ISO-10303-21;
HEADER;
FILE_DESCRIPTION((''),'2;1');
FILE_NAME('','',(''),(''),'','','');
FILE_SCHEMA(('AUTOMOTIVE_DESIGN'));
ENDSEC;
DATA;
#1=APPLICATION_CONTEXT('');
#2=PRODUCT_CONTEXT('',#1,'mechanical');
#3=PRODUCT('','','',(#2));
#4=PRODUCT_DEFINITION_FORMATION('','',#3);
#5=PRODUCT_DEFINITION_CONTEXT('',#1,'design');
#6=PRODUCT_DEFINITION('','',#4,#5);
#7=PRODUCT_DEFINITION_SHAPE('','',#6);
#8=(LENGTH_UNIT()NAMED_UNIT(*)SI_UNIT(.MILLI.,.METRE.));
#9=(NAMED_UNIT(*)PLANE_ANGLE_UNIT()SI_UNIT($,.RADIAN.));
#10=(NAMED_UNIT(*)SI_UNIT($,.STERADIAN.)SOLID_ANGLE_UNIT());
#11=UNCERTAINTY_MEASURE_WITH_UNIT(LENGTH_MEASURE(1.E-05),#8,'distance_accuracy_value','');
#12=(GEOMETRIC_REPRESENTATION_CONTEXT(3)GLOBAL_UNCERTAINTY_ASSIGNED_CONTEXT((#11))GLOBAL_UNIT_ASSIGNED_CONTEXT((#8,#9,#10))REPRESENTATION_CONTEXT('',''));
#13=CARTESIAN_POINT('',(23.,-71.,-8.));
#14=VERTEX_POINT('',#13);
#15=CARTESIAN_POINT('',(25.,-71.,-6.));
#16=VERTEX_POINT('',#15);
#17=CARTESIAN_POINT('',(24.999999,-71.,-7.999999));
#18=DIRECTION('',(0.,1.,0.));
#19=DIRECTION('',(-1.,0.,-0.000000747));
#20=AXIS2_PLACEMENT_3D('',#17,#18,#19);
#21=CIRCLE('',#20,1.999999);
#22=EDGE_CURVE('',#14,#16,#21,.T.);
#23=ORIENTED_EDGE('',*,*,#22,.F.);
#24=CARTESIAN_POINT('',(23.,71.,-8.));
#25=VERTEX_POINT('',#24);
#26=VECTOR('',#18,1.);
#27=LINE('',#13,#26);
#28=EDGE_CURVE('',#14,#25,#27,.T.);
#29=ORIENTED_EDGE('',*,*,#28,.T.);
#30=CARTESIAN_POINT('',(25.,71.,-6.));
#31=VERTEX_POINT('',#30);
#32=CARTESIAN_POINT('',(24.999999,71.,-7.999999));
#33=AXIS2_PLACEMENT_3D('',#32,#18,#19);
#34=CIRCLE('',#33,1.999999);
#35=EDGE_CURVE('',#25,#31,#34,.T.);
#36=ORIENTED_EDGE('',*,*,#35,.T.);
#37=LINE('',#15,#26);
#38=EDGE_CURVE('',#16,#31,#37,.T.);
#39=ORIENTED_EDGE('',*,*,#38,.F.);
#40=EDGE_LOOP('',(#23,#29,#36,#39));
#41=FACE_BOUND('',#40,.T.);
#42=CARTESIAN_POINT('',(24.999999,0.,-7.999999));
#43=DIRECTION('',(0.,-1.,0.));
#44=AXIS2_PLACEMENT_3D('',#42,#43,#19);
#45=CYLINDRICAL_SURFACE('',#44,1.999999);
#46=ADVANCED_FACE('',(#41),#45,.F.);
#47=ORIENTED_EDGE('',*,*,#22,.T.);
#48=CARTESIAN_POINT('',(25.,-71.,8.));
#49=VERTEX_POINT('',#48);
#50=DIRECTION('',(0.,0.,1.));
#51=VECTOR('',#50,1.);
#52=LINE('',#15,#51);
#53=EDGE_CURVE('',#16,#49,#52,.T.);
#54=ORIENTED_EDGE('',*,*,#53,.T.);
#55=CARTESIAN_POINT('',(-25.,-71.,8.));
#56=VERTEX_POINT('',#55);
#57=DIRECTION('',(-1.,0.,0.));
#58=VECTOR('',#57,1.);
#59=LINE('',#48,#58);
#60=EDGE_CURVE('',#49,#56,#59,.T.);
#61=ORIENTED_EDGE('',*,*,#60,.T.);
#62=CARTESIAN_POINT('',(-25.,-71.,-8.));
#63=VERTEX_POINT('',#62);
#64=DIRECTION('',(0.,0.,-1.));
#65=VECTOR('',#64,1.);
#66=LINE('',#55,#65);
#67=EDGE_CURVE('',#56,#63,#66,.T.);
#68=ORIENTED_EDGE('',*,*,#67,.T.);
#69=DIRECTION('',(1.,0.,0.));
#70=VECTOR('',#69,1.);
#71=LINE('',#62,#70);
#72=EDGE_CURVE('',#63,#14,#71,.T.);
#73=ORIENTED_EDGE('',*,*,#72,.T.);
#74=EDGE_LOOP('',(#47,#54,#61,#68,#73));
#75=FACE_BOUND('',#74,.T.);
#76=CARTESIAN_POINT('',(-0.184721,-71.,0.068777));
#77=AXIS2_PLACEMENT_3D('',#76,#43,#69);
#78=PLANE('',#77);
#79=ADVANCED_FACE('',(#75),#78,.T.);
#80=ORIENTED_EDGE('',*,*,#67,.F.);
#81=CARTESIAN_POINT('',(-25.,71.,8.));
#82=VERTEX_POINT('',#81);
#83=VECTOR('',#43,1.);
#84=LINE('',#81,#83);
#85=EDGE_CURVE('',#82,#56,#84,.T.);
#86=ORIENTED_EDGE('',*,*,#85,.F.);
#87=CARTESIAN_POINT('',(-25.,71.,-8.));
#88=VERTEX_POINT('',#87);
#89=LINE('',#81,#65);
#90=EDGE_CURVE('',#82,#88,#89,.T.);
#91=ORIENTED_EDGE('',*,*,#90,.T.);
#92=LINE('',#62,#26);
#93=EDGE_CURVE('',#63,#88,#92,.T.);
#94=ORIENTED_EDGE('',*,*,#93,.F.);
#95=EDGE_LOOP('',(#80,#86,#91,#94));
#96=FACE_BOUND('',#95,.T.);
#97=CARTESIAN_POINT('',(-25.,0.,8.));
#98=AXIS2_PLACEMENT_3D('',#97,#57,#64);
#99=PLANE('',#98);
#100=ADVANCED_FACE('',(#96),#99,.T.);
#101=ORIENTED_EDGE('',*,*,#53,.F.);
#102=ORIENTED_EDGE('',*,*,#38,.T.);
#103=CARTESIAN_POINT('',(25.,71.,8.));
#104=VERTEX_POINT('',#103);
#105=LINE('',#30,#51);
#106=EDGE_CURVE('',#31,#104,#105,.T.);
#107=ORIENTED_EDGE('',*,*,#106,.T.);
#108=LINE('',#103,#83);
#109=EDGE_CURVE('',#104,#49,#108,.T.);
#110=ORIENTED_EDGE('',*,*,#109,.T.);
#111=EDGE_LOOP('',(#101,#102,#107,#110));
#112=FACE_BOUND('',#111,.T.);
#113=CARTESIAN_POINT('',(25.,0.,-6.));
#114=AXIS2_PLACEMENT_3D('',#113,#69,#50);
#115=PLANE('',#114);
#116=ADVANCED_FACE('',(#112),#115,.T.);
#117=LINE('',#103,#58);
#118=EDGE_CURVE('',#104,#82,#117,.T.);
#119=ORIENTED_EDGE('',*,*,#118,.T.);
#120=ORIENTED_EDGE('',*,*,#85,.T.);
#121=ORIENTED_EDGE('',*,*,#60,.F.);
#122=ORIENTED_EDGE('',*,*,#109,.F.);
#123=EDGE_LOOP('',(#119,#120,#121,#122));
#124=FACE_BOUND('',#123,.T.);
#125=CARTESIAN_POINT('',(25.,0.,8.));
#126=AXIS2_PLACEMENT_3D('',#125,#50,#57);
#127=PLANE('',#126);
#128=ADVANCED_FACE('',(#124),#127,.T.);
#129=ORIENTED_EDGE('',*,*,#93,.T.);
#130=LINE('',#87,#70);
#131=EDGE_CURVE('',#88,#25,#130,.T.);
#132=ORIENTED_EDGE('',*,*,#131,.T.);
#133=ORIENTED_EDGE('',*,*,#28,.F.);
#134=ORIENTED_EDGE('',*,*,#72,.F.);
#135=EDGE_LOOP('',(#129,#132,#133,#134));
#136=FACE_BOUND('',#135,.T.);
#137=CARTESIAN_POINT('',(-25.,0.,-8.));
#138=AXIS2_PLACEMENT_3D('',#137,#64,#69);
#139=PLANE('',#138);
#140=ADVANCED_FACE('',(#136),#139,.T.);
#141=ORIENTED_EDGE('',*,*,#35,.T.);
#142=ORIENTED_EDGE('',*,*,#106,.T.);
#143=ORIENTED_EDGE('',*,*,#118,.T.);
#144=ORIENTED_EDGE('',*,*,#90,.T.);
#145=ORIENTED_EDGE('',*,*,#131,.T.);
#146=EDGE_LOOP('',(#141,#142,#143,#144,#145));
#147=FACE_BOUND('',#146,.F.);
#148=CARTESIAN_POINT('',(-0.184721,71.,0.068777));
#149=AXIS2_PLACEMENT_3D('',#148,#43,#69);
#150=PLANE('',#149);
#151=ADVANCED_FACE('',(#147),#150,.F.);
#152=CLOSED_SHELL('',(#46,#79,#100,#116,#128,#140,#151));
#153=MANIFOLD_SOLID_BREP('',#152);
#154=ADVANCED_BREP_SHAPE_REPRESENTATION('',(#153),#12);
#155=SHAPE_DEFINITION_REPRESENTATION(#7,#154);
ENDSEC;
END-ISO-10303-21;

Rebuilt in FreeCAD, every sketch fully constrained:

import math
import FreeCAD as App
import Part
import Sketcher
from FreeCAD import Vector
Q = App.Units.Quantity

doc = App.newDocument("Part")
params = doc.addObject("Spreadsheet::Sheet", "Params")
for row, (alias, value) in enumerate([
    ("sketch1_radius", "1.999999 mm"),
    ("sketch1_width", "50 mm"),
    ("sketch1_height", "14 mm"),
    ("pad1_length", "142 mm"),
], start=1):
    params.set(f"A{row}", alias)
    params.set(f"B{row}", "=" + value)
    params.setAlias(f"B{row}", alias)

body = doc.addObject("PartDesign::Body", "Body")

# Sketch on XZ plane
sketch1 = body.newObject("Sketcher::SketchObject", "Sketch")
sketch1.AttachmentSupport = (doc.getObject("XZ_Plane"), [""])
sketch1.MapMode = "FlatFace"
sketch1.addGeometry([
    Part.LineSegment(Vector(25, -6, 0), Vector(25, 8, 0)),  # 0
    Part.LineSegment(Vector(25, 8, 0), Vector(-25, 8, 0)),  # 1
    Part.LineSegment(Vector(-25, 8, 0), Vector(-25, -8, 0)),  # 2
    Part.LineSegment(Vector(-25, -8, 0), Vector(23, -8, 0)),  # 3
    Part.ArcOfCircle(Part.Circle(Vector(25, -8, 0), Vector(0, 0, 1), 2), math.radians(90), math.radians(180)),  # 4
], False)
sketch1.addConstraint([
    Sketcher.Constraint("Coincident", 0, 2, 1, 1),
    Sketcher.Constraint("Coincident", 1, 2, 2, 1),
    Sketcher.Constraint("Coincident", 2, 2, 3, 1),
    Sketcher.Constraint("Coincident", 3, 2, 4, 2),
    Sketcher.Constraint("Coincident", 4, 1, 0, 1),
    Sketcher.Constraint("Vertical", 0),
    Sketcher.Constraint("Horizontal", 1),
    Sketcher.Constraint("Vertical", 2),
    Sketcher.Constraint("Horizontal", 3),
    Sketcher.Constraint("Symmetric", 0, 2, 2, 2, -1, 1),
    Sketcher.Constraint("Horizontal", 4, 3, 2, 2),
    Sketcher.Constraint("Vertical", 4, 3, 0, 2),
    Sketcher.Constraint("Radius", 4, Q("1.999999 mm")),
    Sketcher.Constraint("DistanceX", 1, 2, 1, 1, Q("50 mm")),
    Sketcher.Constraint("DistanceY", 0, 1, 0, 2, Q("14 mm")),
])
sketch1.setExpression("Constraints[12]", "Params.sketch1_radius")
sketch1.setExpression("Constraints[13]", "Params.sketch1_width")
sketch1.setExpression("Constraints[14]", "Params.sketch1_height")
pad1 = body.newObject("PartDesign::Pad", "Pad")
pad1.Profile = sketch1
pad1.setExpression("Length", "Params.pad1_length")
pad1.Midplane = True

doc.recompute()
